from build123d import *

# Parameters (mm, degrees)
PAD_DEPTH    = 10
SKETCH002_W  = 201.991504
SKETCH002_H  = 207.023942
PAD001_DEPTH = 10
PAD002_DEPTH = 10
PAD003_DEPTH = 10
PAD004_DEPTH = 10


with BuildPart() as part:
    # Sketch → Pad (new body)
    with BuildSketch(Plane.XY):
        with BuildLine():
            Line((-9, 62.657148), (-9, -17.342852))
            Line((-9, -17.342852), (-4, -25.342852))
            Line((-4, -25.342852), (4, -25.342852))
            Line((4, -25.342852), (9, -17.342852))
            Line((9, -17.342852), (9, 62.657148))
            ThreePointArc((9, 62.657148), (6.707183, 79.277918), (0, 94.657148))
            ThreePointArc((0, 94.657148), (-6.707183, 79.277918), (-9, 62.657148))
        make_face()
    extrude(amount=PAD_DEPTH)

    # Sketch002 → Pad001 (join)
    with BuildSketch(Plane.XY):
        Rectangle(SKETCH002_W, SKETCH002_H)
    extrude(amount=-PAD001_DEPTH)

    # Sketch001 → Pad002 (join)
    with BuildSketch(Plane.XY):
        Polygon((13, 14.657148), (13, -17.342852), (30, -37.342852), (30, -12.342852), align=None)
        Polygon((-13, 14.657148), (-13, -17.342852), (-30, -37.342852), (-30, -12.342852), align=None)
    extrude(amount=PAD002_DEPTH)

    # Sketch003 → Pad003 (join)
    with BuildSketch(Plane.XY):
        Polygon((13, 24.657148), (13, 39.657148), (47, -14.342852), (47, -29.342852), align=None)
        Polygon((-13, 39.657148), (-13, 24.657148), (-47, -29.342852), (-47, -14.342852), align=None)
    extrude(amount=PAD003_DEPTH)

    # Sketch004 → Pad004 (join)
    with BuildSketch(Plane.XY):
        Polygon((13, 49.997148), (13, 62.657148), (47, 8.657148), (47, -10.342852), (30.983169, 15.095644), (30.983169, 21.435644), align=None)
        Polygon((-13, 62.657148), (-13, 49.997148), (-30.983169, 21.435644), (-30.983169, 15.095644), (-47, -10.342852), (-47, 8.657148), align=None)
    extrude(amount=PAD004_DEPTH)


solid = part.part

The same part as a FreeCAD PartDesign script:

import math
import FreeCAD as App
import Part
import Sketcher
from FreeCAD import Vector
Q = App.Units.Quantity

doc = App.newDocument("Part")
params = doc.addObject("Spreadsheet::Sheet", "Params")
for row, (alias, value) in enumerate([
    ("sketch1_width", "8 mm"),
    ("sketch1_height", "80 mm"),
    ("pad1_length", "10 mm"),
    ("pad2_length", "10 mm"),
    ("sketch3_height", "32 mm"),
    ("sketch3_height2", "25 mm"),
    ("pad3_length", "10 mm"),
    ("sketch4_height", "15 mm"),
    ("pad4_length", "10 mm"),
    ("sketch5_height", "19 mm"),
    ("sketch5_height2", "12.66 mm"),
    ("pad5_length", "10 mm"),
], start=1):
    params.set(f"A{row}", alias)
    params.set(f"B{row}", "=" + value)
    params.setAlias(f"B{row}", alias)

body = doc.addObject("PartDesign::Body", "Body")

# Sketch on XY plane
sketch1 = body.newObject("Sketcher::SketchObject", "Sketch")
sketch1.AttachmentSupport = (doc.getObject("XY_Plane"), [""])
sketch1.MapMode = "FlatFace"
sketch1.addGeometry([
    Part.LineSegment(Vector(-9, 63, 0), Vector(-9, -17, 0)),  # 0
    Part.LineSegment(Vector(-9, -17, 0), Vector(-4, -25, 0)),  # 1
    Part.LineSegment(Vector(-4, -25, 0), Vector(4, -25, 0)),  # 2
    Part.LineSegment(Vector(4, -25, 0), Vector(9, -17, 0)),  # 3
    Part.LineSegment(Vector(9, -17, 0), Vector(9, 63, 0)),  # 4
    Part.ArcOfCircle(Part.Circle(Vector(-52, 63, 0), Vector(0, 0, 1), 61), math.radians(0), math.radians(31)),  # 5
    Part.ArcOfCircle(Part.Circle(Vector(52, 63, 0), Vector(0, 0, 1), 61), math.radians(149), math.radians(180)),  # 6
], False)
sketch1.addConstraint([
    Sketcher.Constraint("Coincident", 0, 2, 1, 1),
    Sketcher.Constraint("Coincident", 1, 2, 2, 1),
    Sketcher.Constraint("Coincident", 2, 2, 3, 1),
    Sketcher.Constraint("Coincident", 3, 2, 4, 1),
    Sketcher.Constraint("Tangent", 4, 2, 5, 1),
    Sketcher.Constraint("Coincident", 5, 2, 6, 1),
    Sketcher.Constraint("Tangent", 6, 2, 0, 1),
    Sketcher.Constraint("Vertical", 0),
    Sketcher.Constraint("Horizontal", 2),
    Sketcher.Constraint("Vertical", 4),
    Sketcher.Constraint("Equal", 5, 6),
    Sketcher.Constraint("Symmetric", 5, 3, 6, 3, -2),
    Sketcher.Constraint("Horizontal", 0, 2, 3, 2),
    Sketcher.Constraint("Equal", 1, 3),
    Sketcher.Constraint("DistanceX", 2, 1, 2, 2, Q("8 mm")),
    Sketcher.Constraint("DistanceY", 0, 2, 0, 1, Q("80 mm")),
    Sketcher.Constraint("DistanceX", 0, 2, -1, 1, Q("9 mm")),
    Sketcher.Constraint("DistanceY", 1, 2, 0, 2, Q("8 mm")),
    Sketcher.Constraint("DistanceY", 4, 2, 5, 2, Q("32 mm")),
    Sketcher.Constraint("DistanceY", -1, 1, 5, 3, Q("62.65715 mm")),
])
sketch1.setExpression("Constraints[14]", "Params.sketch1_width")
sketch1.setExpression("Constraints[15]", "Params.sketch1_height")
pad1 = body.newObject("PartDesign::Pad", "Pad")
pad1.Profile = sketch1
pad1.setExpression("Length", "Params.pad1_length")

# Sketch on XY plane
sketch2 = body.newObject("Sketcher::SketchObject", "Sketch001")
sketch2.AttachmentSupport = (doc.getObject("XY_Plane"), [""])
sketch2.MapMode = "FlatFace"
sketch2.addGeometry([
    Part.LineSegment(Vector(-101, 104, 0), Vector(-101, -104, 0)),
    Part.LineSegment(Vector(-101, -104, 0), Vector(101, -104, 0)),
    Part.LineSegment(Vector(101, -104, 0), Vector(101, 104, 0)),
    Part.LineSegment(Vector(101, 104, 0), Vector(-101, 104, 0)),
], False)
sketch2.addConstraint([
    Sketcher.Constraint("Coincident", 0, 2, 1, 1),
    Sketcher.Constraint("Coincident", 1, 2, 2, 1),
    Sketcher.Constraint("Coincident", 2, 2, 3, 1),
    Sketcher.Constraint("Coincident", 3, 2, 0, 1),
    Sketcher.Constraint("Vertical", 0),
    Sketcher.Constraint("Horizontal", 1),
    Sketcher.Constraint("Vertical", 2),
    Sketcher.Constraint("Horizontal", 3),
    Sketcher.Constraint("Symmetric", 0, 2, 2, 2, -1, 1),
    Sketcher.Constraint("DistanceY", 0, 2, 0, 1, Q("207.023942 mm")),
    Sketcher.Constraint("DistanceX", 1, 1, 1, 2, Q("201.991504 mm")),
])
pad2 = body.newObject("PartDesign::Pad", "Pad001")
pad2.Profile = sketch2
pad2.setExpression("Length", "Params.pad2_length")
pad2.Reversed = True

# Sketch on XY plane
sketch3 = body.newObject("Sketcher::SketchObject", "Sketch002")
sketch3.AttachmentSupport = (doc.getObject("XY_Plane"), [""])
sketch3.MapMode = "FlatFace"
sketch3.addGeometry([
    Part.LineSegment(Vector(13, 15, 0), Vector(13, -17, 0)),  # 0
    Part.LineSegment(Vector(13, -17, 0), Vector(30, -37, 0)),  # 1
    Part.LineSegment(Vector(30, -37, 0), Vector(30, -12, 0)),  # 2
    Part.LineSegment(Vector(30, -12, 0), Vector(13, 15, 0)),  # 3
    Part.LineSegment(Vector(-13, -17, 0), Vector(-13, 15, 0)),  # 4
    Part.LineSegment(Vector(-13, 15, 0), Vector(-30, -12, 0)),  # 5
    Part.LineSegment(Vector(-30, -12, 0), Vector(-30, -37, 0)),  # 6
    Part.LineSegment(Vector(-30, -37, 0), Vector(-13, -17, 0)),  # 7
], False)
sketch3.addConstraint([
    Sketcher.Constraint("Coincident", 0, 2, 1, 1),
    Sketcher.Constraint("Coincident", 1, 2, 2, 1),
    Sketcher.Constraint("Coincident", 2, 2, 3, 1),
    Sketcher.Constraint("Coincident", 3, 2, 0, 1),
    Sketcher.Constraint("Coincident", 4, 2, 5, 1),
    Sketcher.Constraint("Coincident", 5, 2, 6, 1),
    Sketcher.Constraint("Coincident", 6, 2, 7, 1),
    Sketcher.Constraint("Coincident", 7, 2, 4, 1),
    Sketcher.Constraint("Vertical", 0),
    Sketcher.Constraint("Vertical", 2),
    Sketcher.Constraint("Vertical", 4),
    Sketcher.Constraint("Vertical", 6),
    Sketcher.Constraint("Symmetric", 3, 2, 4, 2, -2),
    Sketcher.Constraint("Symmetric", 2, 2, 5, 2, -2),
    Sketcher.Constraint("Horizontal", 1, 2, 6, 2),
    Sketcher.Constraint("Horizontal", 0, 2, 7, 2),
    Sketcher.Constraint("DistanceY", 0, 2, 0, 1, Q("32 mm")),
    Sketcher.Constraint("DistanceY", 2, 1, 2, 2, Q("25 mm")),
    Sketcher.Constraint("DistanceX", -1, 1, 0, 2, Q("13 mm")),
    Sketcher.Constraint("DistanceX", -1, 1, 1, 2, Q("30 mm")),
    Sketcher.Constraint("DistanceY", 1, 2, 0, 2, Q("20 mm")),
    Sketcher.Constraint("DistanceY", 0, 2, -1, 1, Q("17.342852 mm")),
])
sketch3.setExpression("Constraints[16]", "Params.sketch3_height")
sketch3.setExpression("Constraints[17]", "Params.sketch3_height2")
pad3 = body.newObject("PartDesign::Pad", "Pad002")
pad3.Profile = sketch3
pad3.setExpression("Length", "Params.pad3_length")

# Sketch on XY plane
sketch4 = body.newObject("Sketcher::SketchObject", "Sketch003")
sketch4.AttachmentSupport = (doc.getObject("XY_Plane"), [""])
sketch4.MapMode = "FlatFace"
sketch4.addGeometry([
    Part.LineSegment(Vector(13, 40, 0), Vector(13, 25, 0)),  # 0
    Part.LineSegment(Vector(13, 25, 0), Vector(47, -29, 0)),  # 1
    Part.LineSegment(Vector(47, -29, 0), Vector(47, -14, 0)),  # 2
    Part.LineSegment(Vector(47, -14, 0), Vector(13, 40, 0)),  # 3
    Part.LineSegment(Vector(-13, 25, 0), Vector(-13, 40, 0)),  # 4
    Part.LineSegment(Vector(-13, 40, 0), Vector(-47, -14, 0)),  # 5
    Part.LineSegment(Vector(-47, -14, 0), Vector(-47, -29, 0)),  # 6
    Part.LineSegment(Vector(-47, -29, 0), Vector(-13, 25, 0)),  # 7
], False)
sketch4.addConstraint([
    Sketcher.Constraint("Coincident", 0, 2, 1, 1),
    Sketcher.Constraint("Coincident", 1, 2, 2, 1),
    Sketcher.Constraint("Coincident", 2, 2, 3, 1),
    Sketcher.Constraint("Coincident", 3, 2, 0, 1),
    Sketcher.Constraint("Coincident", 4, 2, 5, 1),
    Sketcher.Constraint("Coincident", 5, 2, 6, 1),
    Sketcher.Constraint("Coincident", 6, 2, 7, 1),
    Sketcher.Constraint("Coincident", 7, 2, 4, 1),
    Sketcher.Constraint("Vertical", 0),
    Sketcher.Constraint("Vertical", 2),
    Sketcher.Constraint("Vertical", 4),
    Sketcher.Constraint("Vertical", 6),
    Sketcher.Constraint("Symmetric", 3, 2, 4, 2, -2),
    Sketcher.Constraint("Symmetric", 2, 2, 5, 2, -2),
    Sketcher.Constraint("Parallel", 1, 3),
    Sketcher.Constraint("Parallel", 5, 7),
    Sketcher.Constraint("Horizontal", 1, 2, 6, 2),
    Sketcher.Constraint("DistanceY", 0, 2, 0, 1, Q("15 mm")),
    Sketcher.Constraint("DistanceX", -1, 1, 0, 2, Q("13 mm")),
    Sketcher.Constraint("DistanceX", -1, 1, 1, 2, Q("47 mm")),
    Sketcher.Constraint("DistanceY", 1, 2, 0, 2, Q("54 mm")),
    Sketcher.Constraint("DistanceY", -1, 1, 0, 2, Q("24.657148 mm")),
])
sketch4.setExpression("Constraints[17]", "Params.sketch4_height")
pad4 = body.newObject("PartDesign::Pad", "Pad003")
pad4.Profile = sketch4
pad4.setExpression("Length", "Params.pad4_length")

# Sketch on XY plane
sketch5 = body.newObject("Sketcher::SketchObject", "Sketch004")
sketch5.AttachmentSupport = (doc.getObject("XY_Plane"), [""])
sketch5.MapMode = "FlatFace"
sketch5.addGeometry([
    Part.LineSegment(Vector(13, 63, 0), Vector(13, 50, 0)),  # 0
    Part.LineSegment(Vector(13, 50, 0), Vector(31, 21, 0)),  # 1
    Part.LineSegment(Vector(31, 21, 0), Vector(31, 15, 0)),  # 2
    Part.LineSegment(Vector(31, 15, 0), Vector(47, -10, 0)),  # 3
    Part.LineSegment(Vector(47, -10, 0), Vector(47, 9, 0)),  # 4
    Part.LineSegment(Vector(47, 9, 0), Vector(13, 63, 0)),  # 5
    Part.LineSegment(Vector(-13, 50, 0), Vector(-13, 63, 0)),  # 6
    Part.LineSegment(Vector(-13, 63, 0), Vector(-47, 9, 0)),  # 7
    Part.LineSegment(Vector(-47, 9, 0), Vector(-47, -10, 0)),  # 8
    Part.LineSegment(Vector(-47, -10, 0), Vector(-31, 15, 0)),  # 9
    Part.LineSegment(Vector(-31, 15, 0), Vector(-31, 21, 0)),  # 10
    Part.LineSegment(Vector(-31, 21, 0), Vector(-13, 50, 0)),  # 11
], False)
sketch5.addConstraint([
    Sketcher.Constraint("Coincident", 0, 2, 1, 1),
    Sketcher.Constraint("Coincident", 1, 2, 2, 1),
    Sketcher.Constraint("Coincident", 2, 2, 3, 1),
    Sketcher.Constraint("Coincident", 3, 2, 4, 1),
    Sketcher.Constraint("Coincident", 4, 2, 5, 1),
    Sketcher.Constraint("Coincident", 5, 2, 0, 1),
    Sketcher.Constraint("Coincident", 6, 2, 7, 1),
    Sketcher.Constraint("Coincident", 7, 2, 8, 1),
    Sketcher.Constraint("Coincident", 8, 2, 9, 1),
    Sketcher.Constraint("Coincident", 9, 2, 10, 1),
    Sketcher.Constraint("Coincident", 10, 2, 11, 1),
    Sketcher.Constraint("Coincident", 11, 2, 6, 1),
    Sketcher.Constraint("Vertical", 0),
    Sketcher.Constraint("Vertical", 2),
    Sketcher.Constraint("Vertical", 4),
    Sketcher.Constraint("Vertical", 6),
    Sketcher.Constraint("Vertical", 8),
    Sketcher.Constraint("Vertical", 10),
    Sketcher.Constraint("Symmetric", 5, 2, 6, 2, -2),
    Sketcher.Constraint("Symmetric", 4, 2, 7, 2, -2),
    Sketcher.Constraint("Symmetric", 2, 2, 9, 2, -2),
    Sketcher.Constraint("Parallel", 1, 3),
    Sketcher.Constraint("Parallel", 3, 5),
    Sketcher.Constraint("Parallel", 7, 9),
    Sketcher.Constraint("Parallel", 9, 11),
    Sketcher.Constraint("Horizontal", 1, 2, 10, 2),
    Sketcher.Constraint("DistanceY", 4, 1, 4, 2, Q("19 mm")),
    Sketcher.Constraint("DistanceX", -1, 1, 0, 2, Q("13 mm")),
    Sketcher.Constraint("DistanceX", -1, 1, 3, 2, Q("47 mm")),
    Sketcher.Constraint("DistanceY", 4, 2, 5, 2, Q("54 mm")),
    Sketcher.Constraint("DistanceY", 0, 2, 0, 1, Q("12.66 mm")),
    Sketcher.Constraint("Distance", 3, Q("30.060871 mm")),
    Sketcher.Constraint("DistanceY", -1, 1, 0, 2, Q("49.997148 mm")),
])
sketch5.setExpression("Constraints[26]", "Params.sketch5_height")
sketch5.setExpression("Constraints[30]", "Params.sketch5_height2")
pad5 = body.newObject("PartDesign::Pad", "Pad004")
pad5.Profile = sketch5
pad5.setExpression("Length", "Params.pad5_length")

doc.recompute()
